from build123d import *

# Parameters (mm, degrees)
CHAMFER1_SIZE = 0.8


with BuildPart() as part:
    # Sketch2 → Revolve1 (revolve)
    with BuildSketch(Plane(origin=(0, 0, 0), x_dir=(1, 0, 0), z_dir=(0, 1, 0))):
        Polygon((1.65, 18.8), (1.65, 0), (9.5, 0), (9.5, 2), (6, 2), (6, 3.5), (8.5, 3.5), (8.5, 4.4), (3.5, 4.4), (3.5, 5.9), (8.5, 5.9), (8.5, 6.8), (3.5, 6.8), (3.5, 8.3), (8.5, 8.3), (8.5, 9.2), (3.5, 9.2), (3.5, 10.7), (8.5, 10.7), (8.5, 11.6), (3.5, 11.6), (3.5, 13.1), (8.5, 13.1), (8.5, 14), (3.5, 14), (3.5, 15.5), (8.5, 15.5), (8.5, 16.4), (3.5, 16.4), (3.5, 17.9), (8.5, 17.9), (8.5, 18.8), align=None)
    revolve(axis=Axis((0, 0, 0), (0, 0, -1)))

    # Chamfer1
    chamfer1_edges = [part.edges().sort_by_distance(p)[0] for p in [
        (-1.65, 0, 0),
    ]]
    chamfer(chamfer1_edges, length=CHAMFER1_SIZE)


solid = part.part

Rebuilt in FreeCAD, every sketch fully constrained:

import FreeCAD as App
import Part
import Sketcher

V = App.Vector
Q = App.Units.Quantity


def edges_at(feature, points):
    """Names of the edges that pass closest to the given points."""
    edges = feature.Shape.Edges
    near = lambda p: min(range(len(edges)), key=lambda i: edges[i].distToShape(Part.Vertex(*p))[0])
    return sorted({f"Edge{near(p) + 1}" for p in points})


def add_polygon(sketch, points):
    """Adds a closed chain of lines whose ends are joined by coincident constraints."""
    first, n = sketch.GeometryCount, len(points)
    for a, b in zip(points, points[1:] + points[:1]):
        sketch.addGeometry(Part.LineSegment(App.Vector(*a, 0), App.Vector(*b, 0)), False)
    for i in range(n):
        sketch.addConstraint(Sketcher.Constraint("Coincident", first + i, 2, first + (i + 1) % n, 1))

doc = App.newDocument("Part")
body = doc.addObject("PartDesign::Body", "Body")

# Sketch on XZ plane
sketch1 = body.newObject("Sketcher::SketchObject", "Sketch")
sketch1.AttachmentSupport = (doc.getObject("XZ_Plane"), [""])
sketch1.MapMode = "FlatFace"
add_polygon(sketch1, [(1.6, -18.8), (1.6, 0), (9.5, 0), (9.5, -2), (6, -2), (6, -3.5), (8.5, -3.5), (8.5, -4.4), (3.5, -4.4), (3.5, -5.9), (8.5, -5.9), (8.5, -6.8), (3.5, -6.8), (3.5, -8.3), (8.5, -8.3), (8.5, -9.2), (3.5, -9.2), (3.5, -10.7), (8.5, -10.7), (8.5, -11.6), (3.5, -11.6), (3.5, -13.1), (8.5, -13.1), (8.5, -14), (3.5, -14), (3.5, -15.5), (8.5, -15.5), (8.5, -16.4), (3.5, -16.4), (3.5, -17.9), (8.5, -17.9), (8.5, -18.8)])  # lines 0-31
sketch1.addConstraint([
    Sketcher.Constraint("Vertical", 0),
    Sketcher.Constraint("Horizontal", 1),
    Sketcher.Constraint("Vertical", 2),
    Sketcher.Constraint("Horizontal", 3),
    Sketcher.Constraint("Vertical", 4),
    Sketcher.Constraint("Horizontal", 5),
    Sketcher.Constraint("Vertical", 6),
    Sketcher.Constraint("Horizontal", 7),
    Sketcher.Constraint("Vertical", 8),
    Sketcher.Constraint("Horizontal", 9),
    Sketcher.Constraint("Vertical", 10),
    Sketcher.Constraint("Horizontal", 11),
    Sketcher.Constraint("Vertical", 12),
    Sketcher.Constraint("Horizontal", 13),
    Sketcher.Constraint("Vertical", 14),
    Sketcher.Constraint("Horizontal", 15),
    Sketcher.Constraint("Vertical", 16),
    Sketcher.Constraint("Horizontal", 17),
    Sketcher.Constraint("Vertical", 18),
    Sketcher.Constraint("Horizontal", 19),
    Sketcher.Constraint("Vertical", 20),
    Sketcher.Constraint("Horizontal", 21),
    Sketcher.Constraint("Vertical", 22),
    Sketcher.Constraint("Horizontal", 23),
    Sketcher.Constraint("Vertical", 24),
    Sketcher.Constraint("Horizontal", 25),
    Sketcher.Constraint("Vertical", 26),
    Sketcher.Constraint("Horizontal", 27),
    Sketcher.Constraint("Vertical", 28),
    Sketcher.Constraint("Horizontal", 29),
    Sketcher.Constraint("Vertical", 30),
    Sketcher.Constraint("Horizontal", 31),
    Sketcher.Constraint("PointOnObject", 0, 2, -1),
    Sketcher.Constraint("Vertical", 6, 2, 9, 2),
    Sketcher.Constraint("Vertical", 8, 2, 11, 2),
    Sketcher.Constraint("Vertical", 10, 2, 13, 2),
    Sketcher.Constraint("Vertical", 12, 2, 15, 2),
    Sketcher.Constraint("Vertical", 14, 2, 17, 2),
    Sketcher.Constraint("Vertical", 16, 2, 19, 2),
    Sketcher.Constraint("Vertical", 18, 2, 21, 2),
    Sketcher.Constraint("Vertical", 20, 2, 23, 2),
    Sketcher.Constraint("Vertical", 22, 2, 25, 2),
    Sketcher.Constraint("Vertical", 24, 2, 27, 2),
    Sketcher.Constraint("Vertical", 26, 2, 29, 2),
    Sketcher.Constraint("Equal", 4, 8),
    Sketcher.Constraint("Equal", 6, 10),
    Sketcher.Constraint("Equal", 8, 12),
    Sketcher.Constraint("Equal", 10, 14),
    Sketcher.Constraint("Equal", 12, 16),
    Sketcher.Constraint("Equal", 14, 18),
    Sketcher.Constraint("Equal", 16, 20),
    Sketcher.Constraint("Equal", 18, 22),
    Sketcher.Constraint("Equal", 20, 24),
    Sketcher.Constraint("Equal", 22, 26),
    Sketcher.Constraint("Equal", 24, 28),
    Sketcher.Constraint("Equal", 26, 30),
    Sketcher.Constraint("DistanceX", 7, 2, 7, 1, Q("5 mm")),
    Sketcher.Constraint("DistanceY", 2, 2, 2, 1, Q("2 mm")),
    Sketcher.Constraint("DistanceX", 3, 2, 3, 1, Q("3.5 mm")),
    Sketcher.Constraint("DistanceX", 5, 1, 5, 2, Q("2.5 mm")),
    Sketcher.Constraint("DistanceY", 0, 1, 0, 2, Q("18.8 mm")),
    Sketcher.Constraint("DistanceY", 4, 2, 4, 1, Q("1.5 mm")),
    Sketcher.Constraint("DistanceX", -1, 1, 3, 2, Q("6 mm")),
    Sketcher.Constraint("DistanceX", 1, 1, 1, 2, Q("7.85 mm")),
])
revolution = body.newObject("PartDesign::Revolution", "Revolution")
revolution.Profile = sketch1
revolution.ReferenceAxis = (sketch1, ["V_Axis"])
revolution.Angle = 360
doc.recompute()

chamfer = body.newObject("PartDesign::Chamfer", "Chamfer")
chamfer.Base = (revolution, edges_at(revolution, [(-1.65, 0, 0)]))
chamfer.Size = 0.8

doc.recompute()
